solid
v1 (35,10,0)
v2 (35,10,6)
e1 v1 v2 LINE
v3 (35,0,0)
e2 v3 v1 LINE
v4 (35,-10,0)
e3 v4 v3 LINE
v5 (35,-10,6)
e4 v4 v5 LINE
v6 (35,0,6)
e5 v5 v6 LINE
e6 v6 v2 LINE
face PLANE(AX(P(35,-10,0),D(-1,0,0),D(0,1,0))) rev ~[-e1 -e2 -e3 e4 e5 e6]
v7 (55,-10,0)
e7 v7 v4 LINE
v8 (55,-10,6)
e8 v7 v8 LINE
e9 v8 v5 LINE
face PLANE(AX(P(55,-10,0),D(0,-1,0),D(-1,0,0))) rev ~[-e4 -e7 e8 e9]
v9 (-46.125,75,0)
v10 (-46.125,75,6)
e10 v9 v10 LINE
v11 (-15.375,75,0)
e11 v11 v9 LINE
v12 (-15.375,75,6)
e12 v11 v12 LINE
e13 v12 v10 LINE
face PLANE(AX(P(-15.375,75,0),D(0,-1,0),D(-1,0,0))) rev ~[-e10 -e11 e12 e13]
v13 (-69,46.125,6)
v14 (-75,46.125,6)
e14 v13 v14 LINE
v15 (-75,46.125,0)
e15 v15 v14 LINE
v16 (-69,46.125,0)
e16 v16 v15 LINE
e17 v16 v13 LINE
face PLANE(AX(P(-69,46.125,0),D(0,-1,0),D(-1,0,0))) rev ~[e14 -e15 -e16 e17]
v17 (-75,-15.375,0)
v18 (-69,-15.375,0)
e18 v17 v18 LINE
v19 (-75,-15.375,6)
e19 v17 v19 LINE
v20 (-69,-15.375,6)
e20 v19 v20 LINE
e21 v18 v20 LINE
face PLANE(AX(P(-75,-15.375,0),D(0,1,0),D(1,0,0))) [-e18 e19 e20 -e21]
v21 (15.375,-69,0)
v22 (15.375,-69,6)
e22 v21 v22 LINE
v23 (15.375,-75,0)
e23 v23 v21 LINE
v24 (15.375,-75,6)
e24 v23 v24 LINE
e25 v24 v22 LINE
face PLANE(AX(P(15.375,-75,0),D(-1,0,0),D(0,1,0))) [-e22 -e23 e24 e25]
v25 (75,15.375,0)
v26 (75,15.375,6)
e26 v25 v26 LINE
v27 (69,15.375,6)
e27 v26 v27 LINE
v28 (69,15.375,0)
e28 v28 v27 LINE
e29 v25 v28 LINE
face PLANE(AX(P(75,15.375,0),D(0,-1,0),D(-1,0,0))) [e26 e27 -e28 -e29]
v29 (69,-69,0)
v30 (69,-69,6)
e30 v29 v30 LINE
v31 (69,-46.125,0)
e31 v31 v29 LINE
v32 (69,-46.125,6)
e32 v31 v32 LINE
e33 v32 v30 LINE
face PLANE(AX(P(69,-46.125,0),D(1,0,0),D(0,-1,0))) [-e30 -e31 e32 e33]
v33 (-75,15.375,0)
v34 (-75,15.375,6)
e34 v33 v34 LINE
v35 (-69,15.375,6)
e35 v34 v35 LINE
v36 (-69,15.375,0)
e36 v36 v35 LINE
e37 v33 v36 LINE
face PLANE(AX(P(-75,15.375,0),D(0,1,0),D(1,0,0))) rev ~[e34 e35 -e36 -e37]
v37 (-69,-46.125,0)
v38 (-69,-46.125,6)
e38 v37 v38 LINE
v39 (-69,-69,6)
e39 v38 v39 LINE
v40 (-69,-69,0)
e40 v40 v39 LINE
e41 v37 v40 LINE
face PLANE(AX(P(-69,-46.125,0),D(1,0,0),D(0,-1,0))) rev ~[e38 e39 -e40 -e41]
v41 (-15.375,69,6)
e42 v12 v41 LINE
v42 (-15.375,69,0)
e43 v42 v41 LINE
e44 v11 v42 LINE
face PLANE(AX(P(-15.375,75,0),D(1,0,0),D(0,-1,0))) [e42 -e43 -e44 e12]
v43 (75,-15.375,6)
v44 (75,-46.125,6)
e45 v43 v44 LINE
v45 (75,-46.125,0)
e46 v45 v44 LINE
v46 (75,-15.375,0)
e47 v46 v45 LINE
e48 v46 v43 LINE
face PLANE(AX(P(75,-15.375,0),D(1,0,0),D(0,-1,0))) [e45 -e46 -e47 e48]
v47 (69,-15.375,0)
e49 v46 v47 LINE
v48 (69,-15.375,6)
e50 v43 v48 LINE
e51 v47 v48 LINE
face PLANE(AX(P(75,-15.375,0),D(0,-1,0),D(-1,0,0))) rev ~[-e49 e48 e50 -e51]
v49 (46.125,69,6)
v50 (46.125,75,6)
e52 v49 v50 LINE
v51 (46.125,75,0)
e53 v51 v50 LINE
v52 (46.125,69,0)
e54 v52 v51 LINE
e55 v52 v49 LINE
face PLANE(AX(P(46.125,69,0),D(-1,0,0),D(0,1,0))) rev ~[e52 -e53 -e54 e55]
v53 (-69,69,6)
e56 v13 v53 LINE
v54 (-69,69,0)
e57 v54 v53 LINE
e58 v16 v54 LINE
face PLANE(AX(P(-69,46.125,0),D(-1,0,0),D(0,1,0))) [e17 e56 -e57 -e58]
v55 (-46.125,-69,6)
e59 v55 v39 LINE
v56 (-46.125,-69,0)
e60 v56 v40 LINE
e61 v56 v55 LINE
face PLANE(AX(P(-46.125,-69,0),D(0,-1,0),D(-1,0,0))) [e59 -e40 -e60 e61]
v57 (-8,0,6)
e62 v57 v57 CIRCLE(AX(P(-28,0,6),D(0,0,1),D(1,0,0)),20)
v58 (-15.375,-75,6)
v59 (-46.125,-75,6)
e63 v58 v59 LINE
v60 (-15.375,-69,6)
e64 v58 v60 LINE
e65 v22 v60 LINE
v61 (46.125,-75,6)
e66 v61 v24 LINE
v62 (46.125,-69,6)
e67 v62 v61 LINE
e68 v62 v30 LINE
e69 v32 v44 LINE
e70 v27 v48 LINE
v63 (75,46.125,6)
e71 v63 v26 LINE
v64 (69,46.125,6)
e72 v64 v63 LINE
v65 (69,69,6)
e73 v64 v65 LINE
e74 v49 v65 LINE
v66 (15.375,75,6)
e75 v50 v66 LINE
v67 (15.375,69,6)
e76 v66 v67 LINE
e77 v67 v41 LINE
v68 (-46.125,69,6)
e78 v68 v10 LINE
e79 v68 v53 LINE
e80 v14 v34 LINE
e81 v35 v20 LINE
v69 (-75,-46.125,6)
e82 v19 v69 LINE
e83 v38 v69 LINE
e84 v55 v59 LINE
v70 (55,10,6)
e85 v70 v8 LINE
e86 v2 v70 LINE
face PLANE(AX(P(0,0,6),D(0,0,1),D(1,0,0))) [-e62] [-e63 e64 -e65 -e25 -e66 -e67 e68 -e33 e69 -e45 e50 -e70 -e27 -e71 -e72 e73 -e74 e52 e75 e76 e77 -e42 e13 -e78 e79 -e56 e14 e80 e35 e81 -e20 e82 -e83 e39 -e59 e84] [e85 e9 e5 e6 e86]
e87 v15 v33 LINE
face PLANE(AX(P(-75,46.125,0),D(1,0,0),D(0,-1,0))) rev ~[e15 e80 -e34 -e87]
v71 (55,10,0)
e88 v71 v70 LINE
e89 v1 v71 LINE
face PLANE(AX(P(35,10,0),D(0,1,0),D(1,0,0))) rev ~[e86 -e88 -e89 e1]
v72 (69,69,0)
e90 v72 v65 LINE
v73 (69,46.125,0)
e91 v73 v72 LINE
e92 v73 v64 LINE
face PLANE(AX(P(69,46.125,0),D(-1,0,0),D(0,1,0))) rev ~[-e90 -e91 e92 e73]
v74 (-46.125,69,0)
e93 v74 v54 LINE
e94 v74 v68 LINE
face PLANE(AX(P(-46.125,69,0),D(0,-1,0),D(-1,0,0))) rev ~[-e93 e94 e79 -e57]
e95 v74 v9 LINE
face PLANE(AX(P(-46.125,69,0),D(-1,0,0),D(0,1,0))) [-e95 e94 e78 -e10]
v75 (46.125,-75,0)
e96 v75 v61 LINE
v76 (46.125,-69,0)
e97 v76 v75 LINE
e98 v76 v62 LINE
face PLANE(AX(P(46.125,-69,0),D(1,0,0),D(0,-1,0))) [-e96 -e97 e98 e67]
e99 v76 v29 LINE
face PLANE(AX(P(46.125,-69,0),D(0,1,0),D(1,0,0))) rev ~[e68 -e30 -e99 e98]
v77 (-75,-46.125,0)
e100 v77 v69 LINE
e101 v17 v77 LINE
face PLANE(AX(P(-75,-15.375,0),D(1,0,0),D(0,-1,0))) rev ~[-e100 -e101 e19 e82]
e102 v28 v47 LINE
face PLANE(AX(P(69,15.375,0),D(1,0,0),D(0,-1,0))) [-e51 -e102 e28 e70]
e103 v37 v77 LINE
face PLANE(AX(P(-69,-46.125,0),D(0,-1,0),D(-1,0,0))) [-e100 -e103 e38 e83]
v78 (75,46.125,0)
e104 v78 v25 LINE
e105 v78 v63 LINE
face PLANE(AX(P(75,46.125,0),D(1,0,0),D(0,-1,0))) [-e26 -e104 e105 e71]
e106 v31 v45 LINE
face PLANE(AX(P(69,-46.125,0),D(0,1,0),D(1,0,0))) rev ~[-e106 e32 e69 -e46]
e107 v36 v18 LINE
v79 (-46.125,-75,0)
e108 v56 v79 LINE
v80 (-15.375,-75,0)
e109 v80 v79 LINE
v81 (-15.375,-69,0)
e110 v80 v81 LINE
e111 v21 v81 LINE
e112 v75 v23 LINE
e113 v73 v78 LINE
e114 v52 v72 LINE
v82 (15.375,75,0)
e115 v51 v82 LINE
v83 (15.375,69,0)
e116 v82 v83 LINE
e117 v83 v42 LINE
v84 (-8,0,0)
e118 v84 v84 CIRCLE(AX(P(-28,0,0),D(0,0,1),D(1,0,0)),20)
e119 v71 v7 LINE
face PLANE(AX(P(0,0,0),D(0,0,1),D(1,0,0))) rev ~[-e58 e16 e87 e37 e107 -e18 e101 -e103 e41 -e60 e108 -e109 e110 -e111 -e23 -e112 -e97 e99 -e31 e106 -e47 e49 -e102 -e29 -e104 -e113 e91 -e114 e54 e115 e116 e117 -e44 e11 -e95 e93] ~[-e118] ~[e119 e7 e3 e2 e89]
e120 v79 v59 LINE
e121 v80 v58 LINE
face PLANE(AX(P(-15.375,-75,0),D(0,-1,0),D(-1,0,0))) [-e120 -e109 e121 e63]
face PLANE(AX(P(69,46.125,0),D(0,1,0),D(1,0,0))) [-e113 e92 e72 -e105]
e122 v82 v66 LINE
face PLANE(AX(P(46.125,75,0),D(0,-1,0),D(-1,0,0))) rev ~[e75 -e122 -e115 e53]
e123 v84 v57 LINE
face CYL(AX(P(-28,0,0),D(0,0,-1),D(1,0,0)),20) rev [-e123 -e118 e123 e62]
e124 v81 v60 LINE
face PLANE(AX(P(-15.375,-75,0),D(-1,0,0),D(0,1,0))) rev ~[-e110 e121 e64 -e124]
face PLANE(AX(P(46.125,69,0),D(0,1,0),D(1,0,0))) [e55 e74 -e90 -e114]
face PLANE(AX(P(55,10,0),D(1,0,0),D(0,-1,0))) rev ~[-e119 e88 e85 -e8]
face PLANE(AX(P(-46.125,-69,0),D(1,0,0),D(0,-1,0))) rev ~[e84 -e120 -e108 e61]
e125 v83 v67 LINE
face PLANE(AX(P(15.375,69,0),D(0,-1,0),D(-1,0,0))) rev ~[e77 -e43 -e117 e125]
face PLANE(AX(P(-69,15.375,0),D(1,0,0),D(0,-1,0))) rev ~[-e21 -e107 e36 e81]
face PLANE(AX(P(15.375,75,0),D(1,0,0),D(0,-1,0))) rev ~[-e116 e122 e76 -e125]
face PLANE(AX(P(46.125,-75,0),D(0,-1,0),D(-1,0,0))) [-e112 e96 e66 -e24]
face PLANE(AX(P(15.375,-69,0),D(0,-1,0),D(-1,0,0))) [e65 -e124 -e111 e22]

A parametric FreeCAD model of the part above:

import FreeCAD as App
import Part
import Sketcher
from FreeCAD import Vector


def add_polygon(sketch, points):
    """Adds a closed chain of lines whose ends are joined by coincident constraints."""
    first, n = sketch.GeometryCount, len(points)
    for a, b in zip(points, points[1:] + points[:1]):
        sketch.addGeometry(Part.LineSegment(App.Vector(*a, 0), App.Vector(*b, 0)), False)
    for i in range(n):
        sketch.addConstraint(Sketcher.Constraint("Coincident", first + i, 2, first + (i + 1) % n, 1))

doc = App.newDocument("Part")
params = doc.addObject("Spreadsheet::Sheet", "Params")
for row, (alias, value) in enumerate([
    ("sketch1_diameter", "40 mm"),
    ("sketch1_width", "20 mm"),
    ("sketch1_width2", "6 mm"),
    ("sketch1_width3", "30.75 mm"),
    ("pad1_length", "6 mm"),
], start=1):
    params.set(f"A{row}", alias)
    params.set(f"B{row}", "=" + value)
    params.setAlias(f"B{row}", alias)

body = doc.addObject("PartDesign::Body", "Body")

sketch1 = body.newObject("Sketcher::SketchObject", "Sketch")
sketch1.AttachmentSupport = (doc.getObject("XY_Plane"), [""])
sketch1.MapMode = "FlatFace"
add_polygon(sketch1, [(-69, -15.375), (-75, -15.375), (-75, -46.125), (-69, -46.125), (-69, -69), (-46.125, -69), (-46.125, -75), (-15.375, -75), (-15.375, -69), (15.375, -69), (15.375, -75), (46.125, -75), (46.125, -69), (69, -69), (69, -46.125), (75, -46.125), (75, -15.375), (69, -15.375), (69, 15.375), (75, 15.375), (75, 46.125), (69, 46.125), (69, 69), (46.125, 69), (46.125, 75), (15.375, 75), (15.375, 69), (-15.375, 69), (-15.375, 75), (-46.125, 75), (-46.125, 69), (-69, 69), (-69, 46.125), (-75, 46.125), (-75, 15.375), (-69, 15.375)])
sketch1.addGeometry(Part.Circle(Vector(-28, 0, 0), Vector(0, 0, 1), 20), False)
add_polygon(sketch1, [(35, 0), (35, 10), (55, 10), (55, -10), (35, -10)])
sketch1.addConstraint([
    Sketcher.Constraint("Horizontal", 0),
    Sketcher.Constraint("Vertical", 1),
    Sketcher.Constraint("Horizontal", 2),
    Sketcher.Constraint("Vertical", 3),
    Sketcher.Constraint("Horizontal", 4),
    Sketcher.Constraint("Vertical", 5),
    Sketcher.Constraint("Horizontal", 6),
    Sketcher.Constraint("Vertical", 7),
    Sketcher.Constraint("Horizontal", 8),
    Sketcher.Constraint("Vertical", 9),
    Sketcher.Constraint("Horizontal", 10),
    Sketcher.Constraint("Vertical", 11),
    Sketcher.Constraint("Horizontal", 12),
    Sketcher.Constraint("Vertical", 13),
    Sketcher.Constraint("Horizontal", 14),
    Sketcher.Constraint("Vertical", 15),
    Sketcher.Constraint("Horizontal", 16),
    Sketcher.Constraint("Vertical", 17),
    Sketcher.Constraint("Horizontal", 18),
    Sketcher.Constraint("Vertical", 19),
    Sketcher.Constraint("Horizontal", 20),
    Sketcher.Constraint("Vertical", 21),
    Sketcher.Constraint("Horizontal", 22),
    Sketcher.Constraint("Vertical", 23),
    Sketcher.Constraint("Horizontal", 24),
    Sketcher.Constraint("Vertical", 25),
    Sketcher.Constraint("Horizontal", 26),
    Sketcher.Constraint("Vertical", 27),
    Sketcher.Constraint("Horizontal", 28),
    Sketcher.Constraint("Vertical", 29),
    Sketcher.Constraint("Horizontal", 30),
    Sketcher.Constraint("Vertical", 31),
    Sketcher.Constraint("Horizontal", 32),
    Sketcher.Constraint("Vertical", 33),
    Sketcher.Constraint("Horizontal", 34),
    Sketcher.Constraint("Vertical", 35),
    Sketcher.Constraint("Vertical", 37),
    Sketcher.Constraint("Horizontal", 38),
    Sketcher.Constraint("Vertical", 39),
    Sketcher.Constraint("Horizontal", 40),
    Sketcher.Constraint("Vertical", 41),
    Sketcher.Constraint("Symmetric", 0, 2, 18, 2, -1, 1),
    Sketcher.Constraint("Symmetric", 2, 2, 20, 2, -1, 1),
    Sketcher.Constraint("Symmetric", 4, 2, 22, 2, -1, 1),
    Sketcher.Constraint("Symmetric", 6, 2, 24, 2, -1, 1),
    Sketcher.Constraint("Symmetric", 8, 2, 26, 2, -1, 1),
    Sketcher.Constraint("Symmetric", 10, 2, 28, 2, -1, 1),
    Sketcher.Constraint("Symmetric", 12, 2, 30, 2, -1, 1),
    Sketcher.Constraint("Symmetric", 14, 2, 32, 2, -1, 1),
    Sketcher.Constraint("Symmetric", 16, 2, 34, 2, -1, 1),
    Sketcher.Constraint("Symmetric", 6, 2, 9, 2, -2),
    Sketcher.Constraint("Symmetric", 4, 2, 11, 2, -2),
    Sketcher.Constraint("Symmetric", 2, 2, 13, 2, -2),
    Sketcher.Constraint("Symmetric", 0, 2, 15, 2, -2),
    Sketcher.Constraint("PointOnObject", 36, 3, -1),
    Sketcher.Constraint("PointOnObject", 41, 2, -1),
    Sketcher.Constraint("Horizontal", 4, 2, 7, 2),
    Sketcher.Constraint("Vertical", 13, 2, 16, 2),
    Sketcher.Constraint("Equal", 6, 8),
    Sketcher.Constraint("Equal", 28, 1),
    Sketcher.Constraint("Equal", 30, 3),
    Sketcher.Constraint("Equal", 34, 5),
    Sketcher.Constraint("Equal", 15, 17),
    Sketcher.Constraint("Equal", 40, 39),
    Sketcher.Constraint("Equal", 37, 41),
    Sketcher.Constraint("Diameter", 36, 40.0),
    Sketcher.Constraint("DistanceX", 38, 1, 38, 2, 20.0),
    Sketcher.Constraint("DistanceX", 36, 3, -1, 1, 28.0),
    Sketcher.Constraint("DistanceX", 37, 2, 18, 2, 40.0),
    Sketcher.Constraint("DistanceX", 0, 2, 0, 1, 6.0),
    Sketcher.Constraint("DistanceX", 0, 2, -1, 1, 75.0),
    Sketcher.Constraint("DistanceX", 6, 1, 6, 2, 30.75),
])
sketch1.setExpression("Constraints[106]", "Params.sketch1_diameter")
sketch1.setExpression("Constraints[107]", "Params.sketch1_width")
sketch1.setExpression("Constraints[110]", "Params.sketch1_width2")
sketch1.setExpression("Constraints[112]", "Params.sketch1_width3")
pad1 = body.newObject("PartDesign::Pad", "Pad")
pad1.Profile = sketch1
pad1.setExpression("Length", "Params.pad1_length")

doc.recompute()
